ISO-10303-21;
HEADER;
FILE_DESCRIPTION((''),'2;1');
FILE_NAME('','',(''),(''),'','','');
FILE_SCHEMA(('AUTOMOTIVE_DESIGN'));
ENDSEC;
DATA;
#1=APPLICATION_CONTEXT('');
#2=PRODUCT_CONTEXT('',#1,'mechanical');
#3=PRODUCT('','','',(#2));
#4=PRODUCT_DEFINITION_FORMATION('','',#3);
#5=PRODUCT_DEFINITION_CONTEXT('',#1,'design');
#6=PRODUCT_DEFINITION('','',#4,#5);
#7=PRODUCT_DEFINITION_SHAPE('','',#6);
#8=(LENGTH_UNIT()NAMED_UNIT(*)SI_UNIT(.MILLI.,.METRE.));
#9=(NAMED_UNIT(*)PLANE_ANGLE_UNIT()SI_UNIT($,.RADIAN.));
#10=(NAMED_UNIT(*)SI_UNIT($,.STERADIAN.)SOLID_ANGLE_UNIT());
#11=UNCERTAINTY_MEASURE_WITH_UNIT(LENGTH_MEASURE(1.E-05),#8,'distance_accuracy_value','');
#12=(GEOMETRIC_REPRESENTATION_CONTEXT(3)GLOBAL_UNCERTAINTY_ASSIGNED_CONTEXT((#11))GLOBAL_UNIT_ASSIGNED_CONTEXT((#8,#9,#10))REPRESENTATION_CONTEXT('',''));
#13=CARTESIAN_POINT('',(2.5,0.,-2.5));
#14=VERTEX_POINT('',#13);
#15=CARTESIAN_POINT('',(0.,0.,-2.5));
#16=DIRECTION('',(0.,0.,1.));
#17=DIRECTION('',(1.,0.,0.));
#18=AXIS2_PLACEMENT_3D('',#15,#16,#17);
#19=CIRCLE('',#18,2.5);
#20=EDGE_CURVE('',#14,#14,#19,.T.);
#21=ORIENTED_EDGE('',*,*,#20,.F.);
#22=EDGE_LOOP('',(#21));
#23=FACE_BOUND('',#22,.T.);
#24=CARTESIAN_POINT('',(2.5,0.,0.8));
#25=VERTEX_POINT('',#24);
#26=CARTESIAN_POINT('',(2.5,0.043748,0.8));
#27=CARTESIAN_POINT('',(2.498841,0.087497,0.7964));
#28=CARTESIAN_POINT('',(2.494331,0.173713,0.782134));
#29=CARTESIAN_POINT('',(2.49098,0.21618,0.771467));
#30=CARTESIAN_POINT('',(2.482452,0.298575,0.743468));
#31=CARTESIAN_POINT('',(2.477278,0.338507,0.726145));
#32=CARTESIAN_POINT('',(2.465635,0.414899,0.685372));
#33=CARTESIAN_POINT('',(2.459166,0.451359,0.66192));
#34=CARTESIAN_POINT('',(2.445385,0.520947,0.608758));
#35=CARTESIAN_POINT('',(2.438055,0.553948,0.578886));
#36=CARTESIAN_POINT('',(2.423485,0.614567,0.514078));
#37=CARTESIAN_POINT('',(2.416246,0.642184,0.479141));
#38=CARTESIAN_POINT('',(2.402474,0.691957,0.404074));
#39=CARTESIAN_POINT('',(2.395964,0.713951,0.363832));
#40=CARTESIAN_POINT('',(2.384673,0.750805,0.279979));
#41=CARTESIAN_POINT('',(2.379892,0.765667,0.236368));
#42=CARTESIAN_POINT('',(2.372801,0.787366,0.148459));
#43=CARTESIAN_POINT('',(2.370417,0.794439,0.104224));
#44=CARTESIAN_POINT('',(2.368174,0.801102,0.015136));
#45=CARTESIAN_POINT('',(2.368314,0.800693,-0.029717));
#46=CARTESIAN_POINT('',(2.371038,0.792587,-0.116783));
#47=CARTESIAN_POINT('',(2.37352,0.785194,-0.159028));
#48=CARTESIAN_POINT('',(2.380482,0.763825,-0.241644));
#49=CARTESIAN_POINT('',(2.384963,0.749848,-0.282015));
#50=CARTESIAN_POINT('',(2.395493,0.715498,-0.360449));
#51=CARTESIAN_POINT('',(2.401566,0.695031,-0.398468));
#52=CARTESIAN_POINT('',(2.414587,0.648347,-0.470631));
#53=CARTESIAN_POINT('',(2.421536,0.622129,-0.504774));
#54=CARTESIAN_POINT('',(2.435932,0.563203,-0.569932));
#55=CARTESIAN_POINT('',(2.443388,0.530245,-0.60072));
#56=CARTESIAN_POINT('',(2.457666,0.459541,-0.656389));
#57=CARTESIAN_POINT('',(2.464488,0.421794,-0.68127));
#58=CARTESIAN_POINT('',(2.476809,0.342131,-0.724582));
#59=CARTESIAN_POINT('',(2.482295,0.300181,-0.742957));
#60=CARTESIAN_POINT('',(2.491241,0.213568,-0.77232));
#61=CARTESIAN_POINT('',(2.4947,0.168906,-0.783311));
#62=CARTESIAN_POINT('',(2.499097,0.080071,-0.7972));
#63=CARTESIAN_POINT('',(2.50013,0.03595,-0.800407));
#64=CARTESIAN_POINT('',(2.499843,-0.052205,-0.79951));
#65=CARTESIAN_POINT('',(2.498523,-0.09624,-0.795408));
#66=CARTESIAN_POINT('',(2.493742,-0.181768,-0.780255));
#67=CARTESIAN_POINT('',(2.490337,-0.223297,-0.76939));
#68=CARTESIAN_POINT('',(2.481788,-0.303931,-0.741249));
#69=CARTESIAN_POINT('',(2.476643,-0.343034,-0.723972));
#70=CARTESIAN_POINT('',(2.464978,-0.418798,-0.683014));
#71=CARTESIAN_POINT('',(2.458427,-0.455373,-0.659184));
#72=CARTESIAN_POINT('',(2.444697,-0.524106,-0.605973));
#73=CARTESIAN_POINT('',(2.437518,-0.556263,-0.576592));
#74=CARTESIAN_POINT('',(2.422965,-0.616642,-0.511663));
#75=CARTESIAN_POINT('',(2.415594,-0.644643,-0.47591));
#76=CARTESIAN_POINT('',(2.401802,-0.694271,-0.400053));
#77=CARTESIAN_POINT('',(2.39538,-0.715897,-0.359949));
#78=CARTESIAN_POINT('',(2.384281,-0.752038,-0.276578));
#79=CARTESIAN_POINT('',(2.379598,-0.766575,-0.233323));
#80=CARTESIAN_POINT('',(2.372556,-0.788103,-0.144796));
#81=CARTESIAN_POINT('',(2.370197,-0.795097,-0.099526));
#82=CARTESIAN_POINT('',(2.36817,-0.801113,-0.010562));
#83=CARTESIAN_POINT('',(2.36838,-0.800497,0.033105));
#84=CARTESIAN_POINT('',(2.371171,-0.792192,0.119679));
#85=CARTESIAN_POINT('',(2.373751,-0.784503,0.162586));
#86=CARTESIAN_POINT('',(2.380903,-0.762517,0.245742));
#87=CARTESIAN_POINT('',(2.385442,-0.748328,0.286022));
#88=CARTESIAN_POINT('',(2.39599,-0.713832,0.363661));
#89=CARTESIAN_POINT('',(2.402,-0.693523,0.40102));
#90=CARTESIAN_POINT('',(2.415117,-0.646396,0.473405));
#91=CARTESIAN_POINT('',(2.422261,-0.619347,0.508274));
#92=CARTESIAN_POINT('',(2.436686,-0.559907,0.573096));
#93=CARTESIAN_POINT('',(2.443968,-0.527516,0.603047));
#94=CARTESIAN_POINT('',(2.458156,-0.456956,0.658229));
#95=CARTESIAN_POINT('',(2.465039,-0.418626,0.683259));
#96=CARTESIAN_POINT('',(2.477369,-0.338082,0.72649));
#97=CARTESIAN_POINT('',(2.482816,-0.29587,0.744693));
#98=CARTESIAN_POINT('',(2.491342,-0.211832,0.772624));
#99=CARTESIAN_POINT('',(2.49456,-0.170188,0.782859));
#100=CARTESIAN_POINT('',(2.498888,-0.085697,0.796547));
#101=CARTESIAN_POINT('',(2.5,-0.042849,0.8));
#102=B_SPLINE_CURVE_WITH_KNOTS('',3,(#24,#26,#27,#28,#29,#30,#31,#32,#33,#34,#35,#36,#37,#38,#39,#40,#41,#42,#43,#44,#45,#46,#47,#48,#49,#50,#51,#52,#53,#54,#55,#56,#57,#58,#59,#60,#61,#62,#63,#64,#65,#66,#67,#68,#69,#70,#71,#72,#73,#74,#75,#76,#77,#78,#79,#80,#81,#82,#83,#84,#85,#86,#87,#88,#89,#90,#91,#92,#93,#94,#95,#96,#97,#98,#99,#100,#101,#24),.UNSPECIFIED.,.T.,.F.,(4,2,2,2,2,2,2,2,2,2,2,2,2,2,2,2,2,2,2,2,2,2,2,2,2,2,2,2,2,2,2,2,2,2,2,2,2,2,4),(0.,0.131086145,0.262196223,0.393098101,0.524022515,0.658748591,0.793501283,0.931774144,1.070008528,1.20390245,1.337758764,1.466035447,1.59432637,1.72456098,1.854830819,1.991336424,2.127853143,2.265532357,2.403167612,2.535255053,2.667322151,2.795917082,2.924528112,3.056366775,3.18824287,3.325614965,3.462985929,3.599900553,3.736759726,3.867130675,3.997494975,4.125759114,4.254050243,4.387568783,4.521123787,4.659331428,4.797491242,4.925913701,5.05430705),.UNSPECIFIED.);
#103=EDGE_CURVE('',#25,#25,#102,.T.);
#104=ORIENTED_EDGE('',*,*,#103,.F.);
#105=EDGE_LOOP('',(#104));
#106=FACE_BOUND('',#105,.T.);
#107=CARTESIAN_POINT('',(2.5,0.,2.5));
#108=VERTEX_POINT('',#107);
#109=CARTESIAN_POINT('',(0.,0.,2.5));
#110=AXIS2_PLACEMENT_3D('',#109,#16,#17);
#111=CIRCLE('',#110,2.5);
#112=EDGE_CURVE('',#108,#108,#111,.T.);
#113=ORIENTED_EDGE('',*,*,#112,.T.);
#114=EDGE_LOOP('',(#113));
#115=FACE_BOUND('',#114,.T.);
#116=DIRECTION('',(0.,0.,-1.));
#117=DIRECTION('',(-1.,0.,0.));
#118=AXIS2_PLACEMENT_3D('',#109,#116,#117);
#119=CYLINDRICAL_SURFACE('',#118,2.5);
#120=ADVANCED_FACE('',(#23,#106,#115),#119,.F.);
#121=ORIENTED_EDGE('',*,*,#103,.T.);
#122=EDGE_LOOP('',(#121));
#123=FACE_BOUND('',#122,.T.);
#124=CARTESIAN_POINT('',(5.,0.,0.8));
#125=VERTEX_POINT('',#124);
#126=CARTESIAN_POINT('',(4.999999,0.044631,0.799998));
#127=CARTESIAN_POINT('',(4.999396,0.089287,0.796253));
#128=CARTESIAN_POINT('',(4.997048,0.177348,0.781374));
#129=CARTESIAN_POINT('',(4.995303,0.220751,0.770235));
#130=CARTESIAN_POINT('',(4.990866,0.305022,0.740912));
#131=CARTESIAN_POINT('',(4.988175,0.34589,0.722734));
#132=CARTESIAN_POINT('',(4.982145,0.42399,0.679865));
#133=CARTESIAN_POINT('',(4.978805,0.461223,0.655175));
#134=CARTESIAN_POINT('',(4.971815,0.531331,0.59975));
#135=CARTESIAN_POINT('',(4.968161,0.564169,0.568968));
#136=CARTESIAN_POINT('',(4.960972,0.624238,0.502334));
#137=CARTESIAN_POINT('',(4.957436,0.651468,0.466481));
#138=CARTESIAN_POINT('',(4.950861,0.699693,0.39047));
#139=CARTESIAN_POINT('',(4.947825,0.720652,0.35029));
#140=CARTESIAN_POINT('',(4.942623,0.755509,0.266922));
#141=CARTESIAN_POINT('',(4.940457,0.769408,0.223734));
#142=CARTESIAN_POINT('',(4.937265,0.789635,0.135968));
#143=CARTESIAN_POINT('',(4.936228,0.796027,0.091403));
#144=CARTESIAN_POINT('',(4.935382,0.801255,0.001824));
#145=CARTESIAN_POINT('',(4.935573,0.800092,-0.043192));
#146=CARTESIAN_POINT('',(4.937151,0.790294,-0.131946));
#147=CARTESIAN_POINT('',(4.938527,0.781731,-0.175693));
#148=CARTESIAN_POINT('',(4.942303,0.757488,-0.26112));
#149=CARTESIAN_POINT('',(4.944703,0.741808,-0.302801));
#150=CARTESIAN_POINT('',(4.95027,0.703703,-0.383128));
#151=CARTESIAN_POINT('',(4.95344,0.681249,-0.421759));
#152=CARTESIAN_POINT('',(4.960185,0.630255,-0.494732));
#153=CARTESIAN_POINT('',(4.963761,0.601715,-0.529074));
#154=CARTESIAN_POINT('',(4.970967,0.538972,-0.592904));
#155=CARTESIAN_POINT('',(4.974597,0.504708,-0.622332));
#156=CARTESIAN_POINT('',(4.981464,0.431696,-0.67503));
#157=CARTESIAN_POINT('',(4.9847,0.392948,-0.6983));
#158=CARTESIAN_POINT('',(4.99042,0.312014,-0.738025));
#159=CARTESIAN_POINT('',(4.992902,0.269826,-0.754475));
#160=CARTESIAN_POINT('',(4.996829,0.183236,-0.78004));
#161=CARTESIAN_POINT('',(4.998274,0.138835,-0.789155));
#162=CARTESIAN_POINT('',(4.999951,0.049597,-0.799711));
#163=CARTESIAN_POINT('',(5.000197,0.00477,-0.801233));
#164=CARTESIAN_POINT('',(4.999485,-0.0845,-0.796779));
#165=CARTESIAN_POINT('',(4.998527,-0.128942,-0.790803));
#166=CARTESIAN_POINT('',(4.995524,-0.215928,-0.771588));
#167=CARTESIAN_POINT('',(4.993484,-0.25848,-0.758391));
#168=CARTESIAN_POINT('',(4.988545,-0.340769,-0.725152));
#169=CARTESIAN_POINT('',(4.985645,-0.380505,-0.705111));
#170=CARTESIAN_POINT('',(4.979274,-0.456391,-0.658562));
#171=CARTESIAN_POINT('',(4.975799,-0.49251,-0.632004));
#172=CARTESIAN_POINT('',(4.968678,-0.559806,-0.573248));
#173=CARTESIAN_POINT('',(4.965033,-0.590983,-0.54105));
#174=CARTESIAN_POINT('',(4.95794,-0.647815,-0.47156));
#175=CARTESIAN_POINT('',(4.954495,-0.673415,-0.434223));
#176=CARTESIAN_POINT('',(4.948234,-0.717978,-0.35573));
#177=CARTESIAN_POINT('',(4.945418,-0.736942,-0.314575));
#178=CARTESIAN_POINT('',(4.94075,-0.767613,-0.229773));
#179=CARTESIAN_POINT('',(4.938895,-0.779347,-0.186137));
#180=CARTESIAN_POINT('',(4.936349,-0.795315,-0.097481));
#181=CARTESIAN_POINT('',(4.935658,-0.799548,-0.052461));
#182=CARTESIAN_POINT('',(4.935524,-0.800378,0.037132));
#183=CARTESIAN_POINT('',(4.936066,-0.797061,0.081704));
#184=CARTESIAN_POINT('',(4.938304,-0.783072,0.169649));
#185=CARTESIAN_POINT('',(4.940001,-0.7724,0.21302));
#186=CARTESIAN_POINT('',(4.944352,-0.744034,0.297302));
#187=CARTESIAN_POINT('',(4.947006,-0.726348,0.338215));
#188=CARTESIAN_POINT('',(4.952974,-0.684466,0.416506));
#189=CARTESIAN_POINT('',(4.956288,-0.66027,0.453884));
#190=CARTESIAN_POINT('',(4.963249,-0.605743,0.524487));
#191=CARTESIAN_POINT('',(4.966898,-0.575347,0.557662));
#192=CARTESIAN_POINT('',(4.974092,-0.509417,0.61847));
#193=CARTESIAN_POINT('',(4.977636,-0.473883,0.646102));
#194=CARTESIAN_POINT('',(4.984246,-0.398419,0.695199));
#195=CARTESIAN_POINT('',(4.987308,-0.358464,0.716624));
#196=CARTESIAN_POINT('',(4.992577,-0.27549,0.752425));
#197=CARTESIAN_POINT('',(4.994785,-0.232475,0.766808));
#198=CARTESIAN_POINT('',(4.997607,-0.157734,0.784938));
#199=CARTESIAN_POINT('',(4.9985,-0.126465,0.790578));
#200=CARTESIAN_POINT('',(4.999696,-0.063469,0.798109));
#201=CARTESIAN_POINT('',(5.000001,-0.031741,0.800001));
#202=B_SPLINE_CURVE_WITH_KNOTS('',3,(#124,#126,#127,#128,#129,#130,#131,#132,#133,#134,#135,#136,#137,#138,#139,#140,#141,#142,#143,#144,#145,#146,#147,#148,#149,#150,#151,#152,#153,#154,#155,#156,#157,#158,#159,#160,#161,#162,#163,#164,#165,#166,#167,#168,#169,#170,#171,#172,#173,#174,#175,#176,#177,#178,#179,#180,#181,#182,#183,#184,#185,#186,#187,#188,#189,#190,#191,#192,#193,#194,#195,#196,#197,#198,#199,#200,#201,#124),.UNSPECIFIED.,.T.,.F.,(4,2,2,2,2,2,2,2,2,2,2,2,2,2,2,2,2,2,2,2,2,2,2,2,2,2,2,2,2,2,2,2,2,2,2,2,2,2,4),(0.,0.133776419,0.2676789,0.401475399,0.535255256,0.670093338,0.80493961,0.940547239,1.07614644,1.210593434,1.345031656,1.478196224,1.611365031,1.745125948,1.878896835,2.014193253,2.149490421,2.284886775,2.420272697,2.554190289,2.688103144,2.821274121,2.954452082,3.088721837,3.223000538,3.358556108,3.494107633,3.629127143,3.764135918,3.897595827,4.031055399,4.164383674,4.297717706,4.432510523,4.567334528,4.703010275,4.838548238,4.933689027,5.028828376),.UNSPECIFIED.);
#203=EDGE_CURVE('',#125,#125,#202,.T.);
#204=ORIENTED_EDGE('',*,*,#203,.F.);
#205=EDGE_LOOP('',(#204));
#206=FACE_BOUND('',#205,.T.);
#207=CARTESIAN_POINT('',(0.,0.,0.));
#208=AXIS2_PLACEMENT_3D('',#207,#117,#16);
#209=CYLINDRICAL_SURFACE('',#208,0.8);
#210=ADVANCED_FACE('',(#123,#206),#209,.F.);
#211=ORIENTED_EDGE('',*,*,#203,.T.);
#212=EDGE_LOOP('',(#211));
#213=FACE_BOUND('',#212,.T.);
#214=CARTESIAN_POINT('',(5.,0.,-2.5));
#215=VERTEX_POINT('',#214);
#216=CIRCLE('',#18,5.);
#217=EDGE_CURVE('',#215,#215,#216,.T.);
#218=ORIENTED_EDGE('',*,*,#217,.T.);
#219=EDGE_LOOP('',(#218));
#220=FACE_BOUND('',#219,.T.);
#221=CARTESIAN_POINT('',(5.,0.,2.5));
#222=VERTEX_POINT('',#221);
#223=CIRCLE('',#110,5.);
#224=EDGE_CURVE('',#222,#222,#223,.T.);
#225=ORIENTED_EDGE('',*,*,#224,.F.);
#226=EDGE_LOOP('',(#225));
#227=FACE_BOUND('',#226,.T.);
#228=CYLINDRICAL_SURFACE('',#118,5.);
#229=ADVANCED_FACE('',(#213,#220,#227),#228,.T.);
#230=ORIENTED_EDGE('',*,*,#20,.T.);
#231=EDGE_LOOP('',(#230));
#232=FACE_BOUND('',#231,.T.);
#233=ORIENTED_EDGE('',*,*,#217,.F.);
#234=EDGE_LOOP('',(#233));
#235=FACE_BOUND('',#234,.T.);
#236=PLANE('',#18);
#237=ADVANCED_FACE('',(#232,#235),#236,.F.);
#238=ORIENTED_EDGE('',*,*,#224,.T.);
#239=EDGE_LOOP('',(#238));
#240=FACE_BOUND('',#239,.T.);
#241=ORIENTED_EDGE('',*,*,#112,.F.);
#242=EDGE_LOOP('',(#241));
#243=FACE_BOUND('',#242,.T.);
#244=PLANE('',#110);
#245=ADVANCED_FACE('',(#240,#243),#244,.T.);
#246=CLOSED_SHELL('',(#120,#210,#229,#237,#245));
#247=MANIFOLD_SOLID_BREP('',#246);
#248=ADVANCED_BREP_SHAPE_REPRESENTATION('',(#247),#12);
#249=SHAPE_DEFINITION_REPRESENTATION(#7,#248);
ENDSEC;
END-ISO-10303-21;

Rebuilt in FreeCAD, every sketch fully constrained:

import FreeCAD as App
import Part
import Sketcher
from FreeCAD import Vector

doc = App.newDocument("Part")
body = doc.addObject("PartDesign::Body", "Body")

# Sketch on XY plane
sketch1 = doc.addObject("Sketcher::SketchObject", "Sketch")
body.addObject(sketch1)
sketch1.AttachmentSupport = (doc.XY_Plane, [""])
sketch1.MapMode = "FlatFace"
sketch1.addGeometry([
    Part.Circle(Vector(0, 0, 0), Vector(0, 0, 1), 5),
    Part.Circle(Vector(0, 0, 0), Vector(0, 0, 1), 2.5),
], False)
sketch1.addConstraint([
    Sketcher.Constraint("Coincident", 0, 3, -1, 1),
    Sketcher.Constraint("Coincident", 1, 3, -1, 1),
    Sketcher.Constraint("Diameter", 0, 10.0),
    Sketcher.Constraint("Diameter", 1, 5.0),
])
pad1 = doc.addObject("PartDesign::Pad", "Pad")
body.addObject(pad1)
pad1.Profile = sketch1
pad1.Length = 5
pad1.Midplane = True

# Sketch on XZ plane
sketch2 = doc.addObject("Sketcher::SketchObject", "Sketch001")
body.addObject(sketch2)
sketch2.AttachmentSupport = (doc.XZ_Plane, [""])
sketch2.MapMode = "FlatFace"
sketch2.addGeometry([
    Part.LineSegment(Vector(5, 0, 0), Vector(0, 0, 0)),
    Part.LineSegment(Vector(0, 0, 0), Vector(0, 0.8, 0)),
    Part.LineSegment(Vector(0, 0.8, 0), Vector(5, 0.8, 0)),
    Part.LineSegment(Vector(5, 0.8, 0), Vector(5, 0, 0)),
], False)
sketch2.addConstraint([
    Sketcher.Constraint("Coincident", 0, 2, 1, 1),
    Sketcher.Constraint("Coincident", 1, 2, 2, 1),
    Sketcher.Constraint("Coincident", 2, 2, 3, 1),
    Sketcher.Constraint("Coincident", 3, 2, 0, 1),
    Sketcher.Constraint("Horizontal", 0),
    Sketcher.Constraint("Vertical", 1),
    Sketcher.Constraint("Horizontal", 2),
    Sketcher.Constraint("Vertical", 3),
    Sketcher.Constraint("Coincident", 0, 2, -1, 1),
    Sketcher.Constraint("DistanceX", 0, 2, 0, 1, 5.0),
    Sketcher.Constraint("DistanceY", 1, 1, 1, 2, 0.8),
])
groove = doc.addObject("PartDesign::Groove", "Groove")
body.addObject(groove)
groove.Profile = sketch2
groove.ReferenceAxis = (sketch2, ["H_Axis"])
groove.Angle = 360

doc.recompute()
